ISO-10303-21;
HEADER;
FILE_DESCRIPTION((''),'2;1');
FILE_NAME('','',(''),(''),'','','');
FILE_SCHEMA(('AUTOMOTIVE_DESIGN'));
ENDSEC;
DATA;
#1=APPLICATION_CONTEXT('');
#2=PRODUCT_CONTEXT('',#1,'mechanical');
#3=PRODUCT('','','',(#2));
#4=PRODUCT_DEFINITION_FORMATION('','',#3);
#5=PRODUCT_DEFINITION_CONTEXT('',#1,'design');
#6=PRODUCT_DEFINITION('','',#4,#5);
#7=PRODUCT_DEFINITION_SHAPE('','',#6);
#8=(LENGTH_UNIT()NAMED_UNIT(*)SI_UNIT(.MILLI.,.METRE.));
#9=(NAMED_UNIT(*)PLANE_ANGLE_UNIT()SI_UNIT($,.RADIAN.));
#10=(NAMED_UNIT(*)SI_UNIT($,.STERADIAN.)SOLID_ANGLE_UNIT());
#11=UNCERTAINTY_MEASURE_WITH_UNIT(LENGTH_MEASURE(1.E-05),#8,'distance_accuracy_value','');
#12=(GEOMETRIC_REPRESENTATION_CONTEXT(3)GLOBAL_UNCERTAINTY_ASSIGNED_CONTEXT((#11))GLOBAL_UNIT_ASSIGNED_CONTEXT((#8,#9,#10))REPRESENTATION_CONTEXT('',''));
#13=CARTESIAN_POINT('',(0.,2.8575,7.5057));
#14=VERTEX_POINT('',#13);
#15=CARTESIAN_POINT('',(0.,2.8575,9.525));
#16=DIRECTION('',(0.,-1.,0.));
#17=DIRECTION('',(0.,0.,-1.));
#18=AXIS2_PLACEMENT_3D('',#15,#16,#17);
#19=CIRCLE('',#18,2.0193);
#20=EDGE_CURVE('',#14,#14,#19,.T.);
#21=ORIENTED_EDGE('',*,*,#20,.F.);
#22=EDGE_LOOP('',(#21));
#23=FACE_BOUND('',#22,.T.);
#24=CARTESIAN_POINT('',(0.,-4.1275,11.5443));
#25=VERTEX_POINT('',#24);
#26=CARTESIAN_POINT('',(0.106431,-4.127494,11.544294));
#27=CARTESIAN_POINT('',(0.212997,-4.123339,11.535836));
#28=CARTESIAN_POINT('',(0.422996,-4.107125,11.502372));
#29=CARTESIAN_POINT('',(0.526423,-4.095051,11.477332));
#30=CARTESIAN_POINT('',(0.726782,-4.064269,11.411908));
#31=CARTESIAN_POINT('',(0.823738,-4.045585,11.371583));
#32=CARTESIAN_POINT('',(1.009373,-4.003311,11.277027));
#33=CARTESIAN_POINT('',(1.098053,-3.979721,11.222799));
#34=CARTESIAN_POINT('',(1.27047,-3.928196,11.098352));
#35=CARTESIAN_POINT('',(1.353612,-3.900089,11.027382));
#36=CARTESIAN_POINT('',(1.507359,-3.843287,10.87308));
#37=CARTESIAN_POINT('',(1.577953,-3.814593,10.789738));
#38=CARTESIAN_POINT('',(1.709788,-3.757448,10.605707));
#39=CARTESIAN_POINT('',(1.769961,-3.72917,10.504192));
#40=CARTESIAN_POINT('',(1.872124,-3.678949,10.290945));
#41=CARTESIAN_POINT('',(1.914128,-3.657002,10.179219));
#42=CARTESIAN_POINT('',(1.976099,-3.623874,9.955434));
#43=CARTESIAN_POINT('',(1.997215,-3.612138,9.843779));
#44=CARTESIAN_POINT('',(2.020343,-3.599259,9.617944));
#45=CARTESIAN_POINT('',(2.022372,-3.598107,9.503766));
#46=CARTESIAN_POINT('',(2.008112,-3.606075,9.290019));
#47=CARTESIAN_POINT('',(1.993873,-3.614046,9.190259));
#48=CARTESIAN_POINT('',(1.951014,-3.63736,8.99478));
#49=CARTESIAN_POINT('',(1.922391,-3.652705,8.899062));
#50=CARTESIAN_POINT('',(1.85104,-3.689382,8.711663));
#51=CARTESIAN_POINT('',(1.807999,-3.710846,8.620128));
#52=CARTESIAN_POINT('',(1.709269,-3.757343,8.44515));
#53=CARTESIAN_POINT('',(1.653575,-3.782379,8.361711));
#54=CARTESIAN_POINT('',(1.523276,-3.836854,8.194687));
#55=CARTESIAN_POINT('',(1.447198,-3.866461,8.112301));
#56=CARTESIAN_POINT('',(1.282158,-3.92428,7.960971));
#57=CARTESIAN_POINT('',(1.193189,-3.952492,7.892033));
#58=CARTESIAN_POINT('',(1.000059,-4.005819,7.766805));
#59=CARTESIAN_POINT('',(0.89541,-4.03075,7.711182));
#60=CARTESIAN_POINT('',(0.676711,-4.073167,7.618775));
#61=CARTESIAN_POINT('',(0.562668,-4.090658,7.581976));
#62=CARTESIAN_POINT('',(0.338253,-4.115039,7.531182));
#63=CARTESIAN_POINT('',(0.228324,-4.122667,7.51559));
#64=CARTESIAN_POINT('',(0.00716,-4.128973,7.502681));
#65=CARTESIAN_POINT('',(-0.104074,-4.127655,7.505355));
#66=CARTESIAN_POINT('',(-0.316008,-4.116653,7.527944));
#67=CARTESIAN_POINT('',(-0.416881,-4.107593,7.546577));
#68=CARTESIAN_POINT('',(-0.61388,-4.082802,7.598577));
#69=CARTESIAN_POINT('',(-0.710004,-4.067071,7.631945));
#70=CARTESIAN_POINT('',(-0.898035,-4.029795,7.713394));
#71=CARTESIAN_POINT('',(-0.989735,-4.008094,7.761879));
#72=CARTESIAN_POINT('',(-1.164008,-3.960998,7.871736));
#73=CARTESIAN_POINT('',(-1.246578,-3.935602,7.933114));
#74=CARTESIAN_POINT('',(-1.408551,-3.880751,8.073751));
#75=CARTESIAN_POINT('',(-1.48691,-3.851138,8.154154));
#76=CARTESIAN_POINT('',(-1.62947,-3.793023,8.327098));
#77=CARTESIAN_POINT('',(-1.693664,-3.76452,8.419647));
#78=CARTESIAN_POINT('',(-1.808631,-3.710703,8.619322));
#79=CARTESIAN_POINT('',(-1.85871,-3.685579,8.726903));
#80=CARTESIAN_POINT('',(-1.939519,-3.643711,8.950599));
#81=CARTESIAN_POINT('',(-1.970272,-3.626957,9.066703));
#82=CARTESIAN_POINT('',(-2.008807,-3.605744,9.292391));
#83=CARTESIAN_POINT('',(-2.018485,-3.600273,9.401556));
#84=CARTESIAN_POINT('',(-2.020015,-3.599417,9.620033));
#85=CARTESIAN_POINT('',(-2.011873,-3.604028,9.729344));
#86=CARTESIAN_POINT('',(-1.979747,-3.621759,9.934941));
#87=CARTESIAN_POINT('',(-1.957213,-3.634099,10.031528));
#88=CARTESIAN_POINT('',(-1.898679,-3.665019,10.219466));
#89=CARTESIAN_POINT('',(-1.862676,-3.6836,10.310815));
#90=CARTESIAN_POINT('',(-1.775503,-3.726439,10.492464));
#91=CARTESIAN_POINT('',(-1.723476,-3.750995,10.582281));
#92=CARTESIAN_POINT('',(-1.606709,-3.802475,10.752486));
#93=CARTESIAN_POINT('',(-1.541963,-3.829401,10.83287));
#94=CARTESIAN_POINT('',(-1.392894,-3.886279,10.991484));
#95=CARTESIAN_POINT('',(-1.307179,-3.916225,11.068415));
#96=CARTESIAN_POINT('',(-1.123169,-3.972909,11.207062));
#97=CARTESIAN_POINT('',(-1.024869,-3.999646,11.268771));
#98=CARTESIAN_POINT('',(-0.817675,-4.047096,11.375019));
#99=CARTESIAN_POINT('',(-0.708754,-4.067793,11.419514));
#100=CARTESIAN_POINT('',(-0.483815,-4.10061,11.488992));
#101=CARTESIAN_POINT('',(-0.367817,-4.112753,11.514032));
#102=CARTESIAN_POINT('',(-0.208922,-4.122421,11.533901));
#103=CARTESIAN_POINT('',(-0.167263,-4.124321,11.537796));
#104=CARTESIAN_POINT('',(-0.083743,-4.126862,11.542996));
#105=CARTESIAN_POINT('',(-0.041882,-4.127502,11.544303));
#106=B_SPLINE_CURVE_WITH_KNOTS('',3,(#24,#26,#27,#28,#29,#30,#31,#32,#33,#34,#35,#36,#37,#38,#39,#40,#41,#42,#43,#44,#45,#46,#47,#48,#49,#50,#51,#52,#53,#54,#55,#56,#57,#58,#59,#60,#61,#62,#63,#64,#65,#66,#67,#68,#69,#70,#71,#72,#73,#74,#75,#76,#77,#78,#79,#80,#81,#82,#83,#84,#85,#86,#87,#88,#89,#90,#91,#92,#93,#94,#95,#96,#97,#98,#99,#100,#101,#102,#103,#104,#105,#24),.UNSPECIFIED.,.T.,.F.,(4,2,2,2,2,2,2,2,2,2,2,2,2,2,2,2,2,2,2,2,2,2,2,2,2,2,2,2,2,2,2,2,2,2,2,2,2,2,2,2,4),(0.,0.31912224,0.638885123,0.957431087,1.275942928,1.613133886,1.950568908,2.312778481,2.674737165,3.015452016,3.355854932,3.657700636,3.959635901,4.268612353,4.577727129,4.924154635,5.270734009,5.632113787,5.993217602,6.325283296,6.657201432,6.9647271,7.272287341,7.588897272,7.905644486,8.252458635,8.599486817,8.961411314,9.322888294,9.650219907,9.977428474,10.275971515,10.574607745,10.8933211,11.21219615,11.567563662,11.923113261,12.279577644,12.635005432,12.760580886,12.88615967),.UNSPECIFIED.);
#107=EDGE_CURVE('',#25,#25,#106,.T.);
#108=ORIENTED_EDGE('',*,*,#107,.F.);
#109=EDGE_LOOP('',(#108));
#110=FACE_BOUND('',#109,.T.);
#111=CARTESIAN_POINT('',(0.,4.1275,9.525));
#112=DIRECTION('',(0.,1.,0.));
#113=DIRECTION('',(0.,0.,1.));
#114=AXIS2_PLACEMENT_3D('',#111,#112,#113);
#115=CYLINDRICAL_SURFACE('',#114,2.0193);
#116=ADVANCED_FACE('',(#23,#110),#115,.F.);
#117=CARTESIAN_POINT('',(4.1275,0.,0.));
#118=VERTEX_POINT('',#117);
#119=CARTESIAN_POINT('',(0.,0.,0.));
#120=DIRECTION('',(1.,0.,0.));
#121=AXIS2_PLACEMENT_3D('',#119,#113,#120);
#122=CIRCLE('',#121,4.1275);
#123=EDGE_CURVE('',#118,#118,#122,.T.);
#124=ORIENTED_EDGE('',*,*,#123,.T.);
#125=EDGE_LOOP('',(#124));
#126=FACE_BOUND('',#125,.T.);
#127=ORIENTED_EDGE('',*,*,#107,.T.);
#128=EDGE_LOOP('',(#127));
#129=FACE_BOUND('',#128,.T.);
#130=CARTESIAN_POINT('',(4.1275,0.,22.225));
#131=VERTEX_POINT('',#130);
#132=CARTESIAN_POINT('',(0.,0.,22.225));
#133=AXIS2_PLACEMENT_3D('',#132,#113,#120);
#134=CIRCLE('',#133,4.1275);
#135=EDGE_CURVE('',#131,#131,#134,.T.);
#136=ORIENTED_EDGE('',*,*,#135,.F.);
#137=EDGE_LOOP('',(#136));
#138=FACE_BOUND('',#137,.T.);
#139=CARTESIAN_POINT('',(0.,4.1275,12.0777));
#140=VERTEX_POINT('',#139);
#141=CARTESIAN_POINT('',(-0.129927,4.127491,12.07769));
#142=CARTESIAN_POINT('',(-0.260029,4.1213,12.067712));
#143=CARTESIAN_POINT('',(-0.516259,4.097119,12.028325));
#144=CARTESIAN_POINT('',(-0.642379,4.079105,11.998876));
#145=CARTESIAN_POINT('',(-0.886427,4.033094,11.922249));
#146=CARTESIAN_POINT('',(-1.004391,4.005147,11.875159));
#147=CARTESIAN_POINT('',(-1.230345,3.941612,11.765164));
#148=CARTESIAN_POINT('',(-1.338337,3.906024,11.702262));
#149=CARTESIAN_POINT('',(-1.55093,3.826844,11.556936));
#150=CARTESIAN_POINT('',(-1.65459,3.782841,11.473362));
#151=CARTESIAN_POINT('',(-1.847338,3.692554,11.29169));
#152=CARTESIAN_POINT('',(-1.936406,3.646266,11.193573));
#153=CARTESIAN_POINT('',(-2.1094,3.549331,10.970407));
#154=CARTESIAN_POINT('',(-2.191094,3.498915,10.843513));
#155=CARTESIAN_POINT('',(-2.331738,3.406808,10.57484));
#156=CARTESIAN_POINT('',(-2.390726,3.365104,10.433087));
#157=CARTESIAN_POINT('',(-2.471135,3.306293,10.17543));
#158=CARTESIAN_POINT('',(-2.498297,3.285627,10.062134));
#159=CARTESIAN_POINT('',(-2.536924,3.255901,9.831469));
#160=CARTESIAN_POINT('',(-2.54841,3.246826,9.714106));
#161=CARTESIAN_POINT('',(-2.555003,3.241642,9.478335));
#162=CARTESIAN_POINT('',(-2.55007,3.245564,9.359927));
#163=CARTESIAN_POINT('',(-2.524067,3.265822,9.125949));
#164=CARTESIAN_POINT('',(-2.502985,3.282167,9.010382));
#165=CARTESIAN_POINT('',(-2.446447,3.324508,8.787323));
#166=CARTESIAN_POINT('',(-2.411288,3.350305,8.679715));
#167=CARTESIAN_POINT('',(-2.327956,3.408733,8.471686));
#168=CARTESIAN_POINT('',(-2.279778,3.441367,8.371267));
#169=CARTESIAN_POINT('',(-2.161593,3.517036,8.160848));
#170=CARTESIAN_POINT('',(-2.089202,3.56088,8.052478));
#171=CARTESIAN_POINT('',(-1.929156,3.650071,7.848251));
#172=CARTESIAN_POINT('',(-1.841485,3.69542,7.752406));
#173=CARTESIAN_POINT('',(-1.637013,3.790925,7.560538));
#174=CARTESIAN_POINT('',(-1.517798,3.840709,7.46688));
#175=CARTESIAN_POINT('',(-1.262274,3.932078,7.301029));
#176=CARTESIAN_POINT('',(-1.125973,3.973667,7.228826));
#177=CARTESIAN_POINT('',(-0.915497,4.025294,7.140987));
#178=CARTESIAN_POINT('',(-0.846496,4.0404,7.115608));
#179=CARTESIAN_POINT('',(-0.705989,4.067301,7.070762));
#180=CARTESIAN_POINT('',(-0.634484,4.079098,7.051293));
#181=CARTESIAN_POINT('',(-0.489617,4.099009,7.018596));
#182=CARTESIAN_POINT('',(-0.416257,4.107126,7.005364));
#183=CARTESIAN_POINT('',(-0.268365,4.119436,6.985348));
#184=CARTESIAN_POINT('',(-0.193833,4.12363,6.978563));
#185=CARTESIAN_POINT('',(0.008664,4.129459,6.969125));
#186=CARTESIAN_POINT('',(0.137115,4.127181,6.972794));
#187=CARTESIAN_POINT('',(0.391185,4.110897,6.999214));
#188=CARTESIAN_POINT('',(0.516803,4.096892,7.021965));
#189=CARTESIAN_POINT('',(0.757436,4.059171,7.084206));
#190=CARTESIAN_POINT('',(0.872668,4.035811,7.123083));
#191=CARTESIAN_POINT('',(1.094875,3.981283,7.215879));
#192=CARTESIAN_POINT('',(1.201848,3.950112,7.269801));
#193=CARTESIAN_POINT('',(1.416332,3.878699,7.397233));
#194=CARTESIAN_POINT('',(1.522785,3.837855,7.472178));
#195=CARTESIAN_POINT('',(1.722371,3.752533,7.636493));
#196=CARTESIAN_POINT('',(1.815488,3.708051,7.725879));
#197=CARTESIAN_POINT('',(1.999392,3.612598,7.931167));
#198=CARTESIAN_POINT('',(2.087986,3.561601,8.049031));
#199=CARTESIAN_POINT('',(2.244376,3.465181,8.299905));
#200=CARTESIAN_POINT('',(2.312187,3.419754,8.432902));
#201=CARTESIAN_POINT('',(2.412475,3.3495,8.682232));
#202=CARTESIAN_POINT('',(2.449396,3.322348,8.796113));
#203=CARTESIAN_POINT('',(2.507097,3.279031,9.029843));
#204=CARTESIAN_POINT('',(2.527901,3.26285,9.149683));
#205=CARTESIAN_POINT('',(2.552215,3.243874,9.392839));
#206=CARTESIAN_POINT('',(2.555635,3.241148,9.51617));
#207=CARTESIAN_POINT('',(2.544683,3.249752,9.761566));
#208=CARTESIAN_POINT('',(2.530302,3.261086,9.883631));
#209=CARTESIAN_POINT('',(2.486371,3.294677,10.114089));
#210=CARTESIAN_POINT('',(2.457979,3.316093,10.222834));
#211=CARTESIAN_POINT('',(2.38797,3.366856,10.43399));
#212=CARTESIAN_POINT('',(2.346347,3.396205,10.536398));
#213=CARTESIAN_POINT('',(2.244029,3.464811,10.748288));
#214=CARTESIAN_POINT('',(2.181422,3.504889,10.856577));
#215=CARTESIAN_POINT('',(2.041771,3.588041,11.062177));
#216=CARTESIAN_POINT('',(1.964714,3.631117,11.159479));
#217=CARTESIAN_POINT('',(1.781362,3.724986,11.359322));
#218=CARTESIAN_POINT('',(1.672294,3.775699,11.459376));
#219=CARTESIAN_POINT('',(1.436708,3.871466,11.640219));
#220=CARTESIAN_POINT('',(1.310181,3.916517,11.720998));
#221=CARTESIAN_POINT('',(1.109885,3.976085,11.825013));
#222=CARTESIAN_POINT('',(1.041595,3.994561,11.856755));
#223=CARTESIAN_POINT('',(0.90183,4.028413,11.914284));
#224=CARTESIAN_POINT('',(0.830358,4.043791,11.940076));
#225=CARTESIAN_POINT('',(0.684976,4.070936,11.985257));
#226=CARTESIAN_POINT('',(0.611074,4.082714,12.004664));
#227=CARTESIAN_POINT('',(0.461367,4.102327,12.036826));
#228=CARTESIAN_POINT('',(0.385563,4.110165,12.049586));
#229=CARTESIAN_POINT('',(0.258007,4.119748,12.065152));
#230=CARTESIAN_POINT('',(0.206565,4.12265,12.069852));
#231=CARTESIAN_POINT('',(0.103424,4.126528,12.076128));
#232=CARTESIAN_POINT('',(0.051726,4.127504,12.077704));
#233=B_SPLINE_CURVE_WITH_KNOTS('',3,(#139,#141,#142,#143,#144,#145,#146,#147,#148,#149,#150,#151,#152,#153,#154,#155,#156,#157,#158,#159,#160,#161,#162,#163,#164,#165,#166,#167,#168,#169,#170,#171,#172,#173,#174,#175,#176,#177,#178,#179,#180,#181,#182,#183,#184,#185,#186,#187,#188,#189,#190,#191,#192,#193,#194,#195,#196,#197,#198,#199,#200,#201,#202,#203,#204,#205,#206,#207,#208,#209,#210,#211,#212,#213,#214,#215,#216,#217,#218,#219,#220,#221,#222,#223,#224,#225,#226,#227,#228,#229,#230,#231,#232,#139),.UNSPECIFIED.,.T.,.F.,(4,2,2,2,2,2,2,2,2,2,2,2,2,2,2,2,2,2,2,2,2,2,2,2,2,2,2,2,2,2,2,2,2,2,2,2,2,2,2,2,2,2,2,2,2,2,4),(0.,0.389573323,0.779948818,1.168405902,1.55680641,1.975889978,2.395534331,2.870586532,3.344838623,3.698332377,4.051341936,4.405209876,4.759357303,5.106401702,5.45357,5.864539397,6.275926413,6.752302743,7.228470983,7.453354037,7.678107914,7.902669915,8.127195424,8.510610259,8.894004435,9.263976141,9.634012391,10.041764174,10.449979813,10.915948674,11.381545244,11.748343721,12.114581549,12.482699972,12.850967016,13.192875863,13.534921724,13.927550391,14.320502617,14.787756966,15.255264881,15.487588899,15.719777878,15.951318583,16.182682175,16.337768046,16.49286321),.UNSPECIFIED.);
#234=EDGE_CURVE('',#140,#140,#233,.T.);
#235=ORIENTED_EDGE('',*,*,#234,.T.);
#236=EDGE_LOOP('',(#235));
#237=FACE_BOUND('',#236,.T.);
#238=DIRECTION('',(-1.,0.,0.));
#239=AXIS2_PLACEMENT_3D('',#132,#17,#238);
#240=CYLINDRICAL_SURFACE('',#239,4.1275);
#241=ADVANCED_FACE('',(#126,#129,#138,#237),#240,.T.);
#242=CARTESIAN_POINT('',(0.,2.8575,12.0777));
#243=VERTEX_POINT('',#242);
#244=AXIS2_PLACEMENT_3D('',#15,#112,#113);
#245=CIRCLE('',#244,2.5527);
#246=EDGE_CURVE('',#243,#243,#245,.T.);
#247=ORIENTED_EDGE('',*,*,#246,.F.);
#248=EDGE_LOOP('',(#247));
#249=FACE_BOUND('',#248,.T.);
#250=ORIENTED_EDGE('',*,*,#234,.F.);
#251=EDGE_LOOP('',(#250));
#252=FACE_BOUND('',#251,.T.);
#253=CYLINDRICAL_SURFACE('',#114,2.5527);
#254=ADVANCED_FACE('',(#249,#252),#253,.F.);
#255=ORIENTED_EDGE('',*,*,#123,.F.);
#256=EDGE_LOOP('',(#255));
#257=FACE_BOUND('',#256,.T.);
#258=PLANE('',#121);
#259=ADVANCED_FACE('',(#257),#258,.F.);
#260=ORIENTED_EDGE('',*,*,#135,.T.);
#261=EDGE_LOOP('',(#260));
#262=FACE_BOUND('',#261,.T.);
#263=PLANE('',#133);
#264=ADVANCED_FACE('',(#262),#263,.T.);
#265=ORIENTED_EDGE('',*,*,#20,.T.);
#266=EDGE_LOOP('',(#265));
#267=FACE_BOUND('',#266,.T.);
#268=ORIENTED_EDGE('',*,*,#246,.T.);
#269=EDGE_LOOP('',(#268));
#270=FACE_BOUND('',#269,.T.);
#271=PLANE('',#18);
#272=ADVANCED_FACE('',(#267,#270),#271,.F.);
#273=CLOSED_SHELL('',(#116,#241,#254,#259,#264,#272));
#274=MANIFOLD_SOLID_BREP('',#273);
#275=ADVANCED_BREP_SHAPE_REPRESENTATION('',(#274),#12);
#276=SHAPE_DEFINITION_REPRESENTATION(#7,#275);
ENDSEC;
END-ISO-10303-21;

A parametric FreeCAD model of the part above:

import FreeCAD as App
import Part
import Sketcher
from FreeCAD import Vector
Q = App.Units.Quantity

doc = App.newDocument("Part")
body = doc.addObject("PartDesign::Body", "Body")

sketch1 = body.newObject("Sketcher::SketchObject", "Sketch")
sketch1.AttachmentSupport = (doc.getObject("XY_Plane"), [""])
sketch1.MapMode = "FlatFace"
sketch1.addGeometry(Part.Circle(Vector(0, 0, 0), Vector(0, 0, 1), 4.1), False)
sketch1.addConstraint([
    Sketcher.Constraint("Coincident", 0, 3, -1, 1),
    Sketcher.Constraint("Diameter", 0, Q("0.325 in")),
])
pad1 = body.newObject("PartDesign::Pad", "Pad")
pad1.Profile = sketch1
pad1.Length = Q("0.875 in")

sketch2 = body.newObject("Sketcher::SketchObject", "Sketch001")
sketch2.AttachmentSupport = (doc.getObject("XZ_Plane"), [""])
sketch2.MapMode = "FlatFace"
sketch2.AttachmentOffset = App.Placement(Vector(0, 0, -0.1625 * 25.4), App.Rotation())
sketch2.addGeometry(Part.Circle(Vector(0, 9.5, 0), Vector(0, 0, 1), 2.6), False)
sketch2.addConstraint([
    Sketcher.Constraint("PointOnObject", 0, 3, -2),
    Sketcher.Constraint("Diameter", 0, Q("0.201 in")),
    Sketcher.Constraint("DistanceY", -1, 1, 0, 3, Q("0.375 in")),
])
doc.recompute()
hole = body.newObject("PartDesign::Hole", "Hole")
hole.Profile = sketch2
hole.ThreadType = "None"
hole.Diameter = Q("0.201 in")
hole.DepthType = "Dimension"
hole.Depth = Q("0.05 in")
hole.DrillPoint = "Flat"
hole.Reversed = True

sketch3 = body.newObject("Sketcher::SketchObject", "Sketch002")
sketch3.AttachmentSupport = (doc.getObject("XZ_Plane"), [""])
sketch3.MapMode = "FlatFace"
sketch3.AttachmentOffset = App.Placement(Vector(0, 0, -0.1625 * 25.4), App.Rotation())
sketch3.addGeometry(Part.Circle(Vector(0, 9.5, 0), Vector(0, 0, 1), 2), False)
sketch3.addConstraint([
    Sketcher.Constraint("PointOnObject", 0, 3, -2),
    Sketcher.Constraint("Diameter", 0, Q("0.159 in")),
    Sketcher.Constraint("DistanceY", -1, 1, 0, 3, Q("0.375 in")),
])
doc.recompute()
hole2 = body.newObject("PartDesign::Hole", "Hole001")
hole2.Profile = sketch3
hole2.ThreadType = "None"
hole2.Diameter = Q("0.159 in")
hole2.DepthType = "ThroughAll"
hole2.Reversed = True

doc.recompute()
